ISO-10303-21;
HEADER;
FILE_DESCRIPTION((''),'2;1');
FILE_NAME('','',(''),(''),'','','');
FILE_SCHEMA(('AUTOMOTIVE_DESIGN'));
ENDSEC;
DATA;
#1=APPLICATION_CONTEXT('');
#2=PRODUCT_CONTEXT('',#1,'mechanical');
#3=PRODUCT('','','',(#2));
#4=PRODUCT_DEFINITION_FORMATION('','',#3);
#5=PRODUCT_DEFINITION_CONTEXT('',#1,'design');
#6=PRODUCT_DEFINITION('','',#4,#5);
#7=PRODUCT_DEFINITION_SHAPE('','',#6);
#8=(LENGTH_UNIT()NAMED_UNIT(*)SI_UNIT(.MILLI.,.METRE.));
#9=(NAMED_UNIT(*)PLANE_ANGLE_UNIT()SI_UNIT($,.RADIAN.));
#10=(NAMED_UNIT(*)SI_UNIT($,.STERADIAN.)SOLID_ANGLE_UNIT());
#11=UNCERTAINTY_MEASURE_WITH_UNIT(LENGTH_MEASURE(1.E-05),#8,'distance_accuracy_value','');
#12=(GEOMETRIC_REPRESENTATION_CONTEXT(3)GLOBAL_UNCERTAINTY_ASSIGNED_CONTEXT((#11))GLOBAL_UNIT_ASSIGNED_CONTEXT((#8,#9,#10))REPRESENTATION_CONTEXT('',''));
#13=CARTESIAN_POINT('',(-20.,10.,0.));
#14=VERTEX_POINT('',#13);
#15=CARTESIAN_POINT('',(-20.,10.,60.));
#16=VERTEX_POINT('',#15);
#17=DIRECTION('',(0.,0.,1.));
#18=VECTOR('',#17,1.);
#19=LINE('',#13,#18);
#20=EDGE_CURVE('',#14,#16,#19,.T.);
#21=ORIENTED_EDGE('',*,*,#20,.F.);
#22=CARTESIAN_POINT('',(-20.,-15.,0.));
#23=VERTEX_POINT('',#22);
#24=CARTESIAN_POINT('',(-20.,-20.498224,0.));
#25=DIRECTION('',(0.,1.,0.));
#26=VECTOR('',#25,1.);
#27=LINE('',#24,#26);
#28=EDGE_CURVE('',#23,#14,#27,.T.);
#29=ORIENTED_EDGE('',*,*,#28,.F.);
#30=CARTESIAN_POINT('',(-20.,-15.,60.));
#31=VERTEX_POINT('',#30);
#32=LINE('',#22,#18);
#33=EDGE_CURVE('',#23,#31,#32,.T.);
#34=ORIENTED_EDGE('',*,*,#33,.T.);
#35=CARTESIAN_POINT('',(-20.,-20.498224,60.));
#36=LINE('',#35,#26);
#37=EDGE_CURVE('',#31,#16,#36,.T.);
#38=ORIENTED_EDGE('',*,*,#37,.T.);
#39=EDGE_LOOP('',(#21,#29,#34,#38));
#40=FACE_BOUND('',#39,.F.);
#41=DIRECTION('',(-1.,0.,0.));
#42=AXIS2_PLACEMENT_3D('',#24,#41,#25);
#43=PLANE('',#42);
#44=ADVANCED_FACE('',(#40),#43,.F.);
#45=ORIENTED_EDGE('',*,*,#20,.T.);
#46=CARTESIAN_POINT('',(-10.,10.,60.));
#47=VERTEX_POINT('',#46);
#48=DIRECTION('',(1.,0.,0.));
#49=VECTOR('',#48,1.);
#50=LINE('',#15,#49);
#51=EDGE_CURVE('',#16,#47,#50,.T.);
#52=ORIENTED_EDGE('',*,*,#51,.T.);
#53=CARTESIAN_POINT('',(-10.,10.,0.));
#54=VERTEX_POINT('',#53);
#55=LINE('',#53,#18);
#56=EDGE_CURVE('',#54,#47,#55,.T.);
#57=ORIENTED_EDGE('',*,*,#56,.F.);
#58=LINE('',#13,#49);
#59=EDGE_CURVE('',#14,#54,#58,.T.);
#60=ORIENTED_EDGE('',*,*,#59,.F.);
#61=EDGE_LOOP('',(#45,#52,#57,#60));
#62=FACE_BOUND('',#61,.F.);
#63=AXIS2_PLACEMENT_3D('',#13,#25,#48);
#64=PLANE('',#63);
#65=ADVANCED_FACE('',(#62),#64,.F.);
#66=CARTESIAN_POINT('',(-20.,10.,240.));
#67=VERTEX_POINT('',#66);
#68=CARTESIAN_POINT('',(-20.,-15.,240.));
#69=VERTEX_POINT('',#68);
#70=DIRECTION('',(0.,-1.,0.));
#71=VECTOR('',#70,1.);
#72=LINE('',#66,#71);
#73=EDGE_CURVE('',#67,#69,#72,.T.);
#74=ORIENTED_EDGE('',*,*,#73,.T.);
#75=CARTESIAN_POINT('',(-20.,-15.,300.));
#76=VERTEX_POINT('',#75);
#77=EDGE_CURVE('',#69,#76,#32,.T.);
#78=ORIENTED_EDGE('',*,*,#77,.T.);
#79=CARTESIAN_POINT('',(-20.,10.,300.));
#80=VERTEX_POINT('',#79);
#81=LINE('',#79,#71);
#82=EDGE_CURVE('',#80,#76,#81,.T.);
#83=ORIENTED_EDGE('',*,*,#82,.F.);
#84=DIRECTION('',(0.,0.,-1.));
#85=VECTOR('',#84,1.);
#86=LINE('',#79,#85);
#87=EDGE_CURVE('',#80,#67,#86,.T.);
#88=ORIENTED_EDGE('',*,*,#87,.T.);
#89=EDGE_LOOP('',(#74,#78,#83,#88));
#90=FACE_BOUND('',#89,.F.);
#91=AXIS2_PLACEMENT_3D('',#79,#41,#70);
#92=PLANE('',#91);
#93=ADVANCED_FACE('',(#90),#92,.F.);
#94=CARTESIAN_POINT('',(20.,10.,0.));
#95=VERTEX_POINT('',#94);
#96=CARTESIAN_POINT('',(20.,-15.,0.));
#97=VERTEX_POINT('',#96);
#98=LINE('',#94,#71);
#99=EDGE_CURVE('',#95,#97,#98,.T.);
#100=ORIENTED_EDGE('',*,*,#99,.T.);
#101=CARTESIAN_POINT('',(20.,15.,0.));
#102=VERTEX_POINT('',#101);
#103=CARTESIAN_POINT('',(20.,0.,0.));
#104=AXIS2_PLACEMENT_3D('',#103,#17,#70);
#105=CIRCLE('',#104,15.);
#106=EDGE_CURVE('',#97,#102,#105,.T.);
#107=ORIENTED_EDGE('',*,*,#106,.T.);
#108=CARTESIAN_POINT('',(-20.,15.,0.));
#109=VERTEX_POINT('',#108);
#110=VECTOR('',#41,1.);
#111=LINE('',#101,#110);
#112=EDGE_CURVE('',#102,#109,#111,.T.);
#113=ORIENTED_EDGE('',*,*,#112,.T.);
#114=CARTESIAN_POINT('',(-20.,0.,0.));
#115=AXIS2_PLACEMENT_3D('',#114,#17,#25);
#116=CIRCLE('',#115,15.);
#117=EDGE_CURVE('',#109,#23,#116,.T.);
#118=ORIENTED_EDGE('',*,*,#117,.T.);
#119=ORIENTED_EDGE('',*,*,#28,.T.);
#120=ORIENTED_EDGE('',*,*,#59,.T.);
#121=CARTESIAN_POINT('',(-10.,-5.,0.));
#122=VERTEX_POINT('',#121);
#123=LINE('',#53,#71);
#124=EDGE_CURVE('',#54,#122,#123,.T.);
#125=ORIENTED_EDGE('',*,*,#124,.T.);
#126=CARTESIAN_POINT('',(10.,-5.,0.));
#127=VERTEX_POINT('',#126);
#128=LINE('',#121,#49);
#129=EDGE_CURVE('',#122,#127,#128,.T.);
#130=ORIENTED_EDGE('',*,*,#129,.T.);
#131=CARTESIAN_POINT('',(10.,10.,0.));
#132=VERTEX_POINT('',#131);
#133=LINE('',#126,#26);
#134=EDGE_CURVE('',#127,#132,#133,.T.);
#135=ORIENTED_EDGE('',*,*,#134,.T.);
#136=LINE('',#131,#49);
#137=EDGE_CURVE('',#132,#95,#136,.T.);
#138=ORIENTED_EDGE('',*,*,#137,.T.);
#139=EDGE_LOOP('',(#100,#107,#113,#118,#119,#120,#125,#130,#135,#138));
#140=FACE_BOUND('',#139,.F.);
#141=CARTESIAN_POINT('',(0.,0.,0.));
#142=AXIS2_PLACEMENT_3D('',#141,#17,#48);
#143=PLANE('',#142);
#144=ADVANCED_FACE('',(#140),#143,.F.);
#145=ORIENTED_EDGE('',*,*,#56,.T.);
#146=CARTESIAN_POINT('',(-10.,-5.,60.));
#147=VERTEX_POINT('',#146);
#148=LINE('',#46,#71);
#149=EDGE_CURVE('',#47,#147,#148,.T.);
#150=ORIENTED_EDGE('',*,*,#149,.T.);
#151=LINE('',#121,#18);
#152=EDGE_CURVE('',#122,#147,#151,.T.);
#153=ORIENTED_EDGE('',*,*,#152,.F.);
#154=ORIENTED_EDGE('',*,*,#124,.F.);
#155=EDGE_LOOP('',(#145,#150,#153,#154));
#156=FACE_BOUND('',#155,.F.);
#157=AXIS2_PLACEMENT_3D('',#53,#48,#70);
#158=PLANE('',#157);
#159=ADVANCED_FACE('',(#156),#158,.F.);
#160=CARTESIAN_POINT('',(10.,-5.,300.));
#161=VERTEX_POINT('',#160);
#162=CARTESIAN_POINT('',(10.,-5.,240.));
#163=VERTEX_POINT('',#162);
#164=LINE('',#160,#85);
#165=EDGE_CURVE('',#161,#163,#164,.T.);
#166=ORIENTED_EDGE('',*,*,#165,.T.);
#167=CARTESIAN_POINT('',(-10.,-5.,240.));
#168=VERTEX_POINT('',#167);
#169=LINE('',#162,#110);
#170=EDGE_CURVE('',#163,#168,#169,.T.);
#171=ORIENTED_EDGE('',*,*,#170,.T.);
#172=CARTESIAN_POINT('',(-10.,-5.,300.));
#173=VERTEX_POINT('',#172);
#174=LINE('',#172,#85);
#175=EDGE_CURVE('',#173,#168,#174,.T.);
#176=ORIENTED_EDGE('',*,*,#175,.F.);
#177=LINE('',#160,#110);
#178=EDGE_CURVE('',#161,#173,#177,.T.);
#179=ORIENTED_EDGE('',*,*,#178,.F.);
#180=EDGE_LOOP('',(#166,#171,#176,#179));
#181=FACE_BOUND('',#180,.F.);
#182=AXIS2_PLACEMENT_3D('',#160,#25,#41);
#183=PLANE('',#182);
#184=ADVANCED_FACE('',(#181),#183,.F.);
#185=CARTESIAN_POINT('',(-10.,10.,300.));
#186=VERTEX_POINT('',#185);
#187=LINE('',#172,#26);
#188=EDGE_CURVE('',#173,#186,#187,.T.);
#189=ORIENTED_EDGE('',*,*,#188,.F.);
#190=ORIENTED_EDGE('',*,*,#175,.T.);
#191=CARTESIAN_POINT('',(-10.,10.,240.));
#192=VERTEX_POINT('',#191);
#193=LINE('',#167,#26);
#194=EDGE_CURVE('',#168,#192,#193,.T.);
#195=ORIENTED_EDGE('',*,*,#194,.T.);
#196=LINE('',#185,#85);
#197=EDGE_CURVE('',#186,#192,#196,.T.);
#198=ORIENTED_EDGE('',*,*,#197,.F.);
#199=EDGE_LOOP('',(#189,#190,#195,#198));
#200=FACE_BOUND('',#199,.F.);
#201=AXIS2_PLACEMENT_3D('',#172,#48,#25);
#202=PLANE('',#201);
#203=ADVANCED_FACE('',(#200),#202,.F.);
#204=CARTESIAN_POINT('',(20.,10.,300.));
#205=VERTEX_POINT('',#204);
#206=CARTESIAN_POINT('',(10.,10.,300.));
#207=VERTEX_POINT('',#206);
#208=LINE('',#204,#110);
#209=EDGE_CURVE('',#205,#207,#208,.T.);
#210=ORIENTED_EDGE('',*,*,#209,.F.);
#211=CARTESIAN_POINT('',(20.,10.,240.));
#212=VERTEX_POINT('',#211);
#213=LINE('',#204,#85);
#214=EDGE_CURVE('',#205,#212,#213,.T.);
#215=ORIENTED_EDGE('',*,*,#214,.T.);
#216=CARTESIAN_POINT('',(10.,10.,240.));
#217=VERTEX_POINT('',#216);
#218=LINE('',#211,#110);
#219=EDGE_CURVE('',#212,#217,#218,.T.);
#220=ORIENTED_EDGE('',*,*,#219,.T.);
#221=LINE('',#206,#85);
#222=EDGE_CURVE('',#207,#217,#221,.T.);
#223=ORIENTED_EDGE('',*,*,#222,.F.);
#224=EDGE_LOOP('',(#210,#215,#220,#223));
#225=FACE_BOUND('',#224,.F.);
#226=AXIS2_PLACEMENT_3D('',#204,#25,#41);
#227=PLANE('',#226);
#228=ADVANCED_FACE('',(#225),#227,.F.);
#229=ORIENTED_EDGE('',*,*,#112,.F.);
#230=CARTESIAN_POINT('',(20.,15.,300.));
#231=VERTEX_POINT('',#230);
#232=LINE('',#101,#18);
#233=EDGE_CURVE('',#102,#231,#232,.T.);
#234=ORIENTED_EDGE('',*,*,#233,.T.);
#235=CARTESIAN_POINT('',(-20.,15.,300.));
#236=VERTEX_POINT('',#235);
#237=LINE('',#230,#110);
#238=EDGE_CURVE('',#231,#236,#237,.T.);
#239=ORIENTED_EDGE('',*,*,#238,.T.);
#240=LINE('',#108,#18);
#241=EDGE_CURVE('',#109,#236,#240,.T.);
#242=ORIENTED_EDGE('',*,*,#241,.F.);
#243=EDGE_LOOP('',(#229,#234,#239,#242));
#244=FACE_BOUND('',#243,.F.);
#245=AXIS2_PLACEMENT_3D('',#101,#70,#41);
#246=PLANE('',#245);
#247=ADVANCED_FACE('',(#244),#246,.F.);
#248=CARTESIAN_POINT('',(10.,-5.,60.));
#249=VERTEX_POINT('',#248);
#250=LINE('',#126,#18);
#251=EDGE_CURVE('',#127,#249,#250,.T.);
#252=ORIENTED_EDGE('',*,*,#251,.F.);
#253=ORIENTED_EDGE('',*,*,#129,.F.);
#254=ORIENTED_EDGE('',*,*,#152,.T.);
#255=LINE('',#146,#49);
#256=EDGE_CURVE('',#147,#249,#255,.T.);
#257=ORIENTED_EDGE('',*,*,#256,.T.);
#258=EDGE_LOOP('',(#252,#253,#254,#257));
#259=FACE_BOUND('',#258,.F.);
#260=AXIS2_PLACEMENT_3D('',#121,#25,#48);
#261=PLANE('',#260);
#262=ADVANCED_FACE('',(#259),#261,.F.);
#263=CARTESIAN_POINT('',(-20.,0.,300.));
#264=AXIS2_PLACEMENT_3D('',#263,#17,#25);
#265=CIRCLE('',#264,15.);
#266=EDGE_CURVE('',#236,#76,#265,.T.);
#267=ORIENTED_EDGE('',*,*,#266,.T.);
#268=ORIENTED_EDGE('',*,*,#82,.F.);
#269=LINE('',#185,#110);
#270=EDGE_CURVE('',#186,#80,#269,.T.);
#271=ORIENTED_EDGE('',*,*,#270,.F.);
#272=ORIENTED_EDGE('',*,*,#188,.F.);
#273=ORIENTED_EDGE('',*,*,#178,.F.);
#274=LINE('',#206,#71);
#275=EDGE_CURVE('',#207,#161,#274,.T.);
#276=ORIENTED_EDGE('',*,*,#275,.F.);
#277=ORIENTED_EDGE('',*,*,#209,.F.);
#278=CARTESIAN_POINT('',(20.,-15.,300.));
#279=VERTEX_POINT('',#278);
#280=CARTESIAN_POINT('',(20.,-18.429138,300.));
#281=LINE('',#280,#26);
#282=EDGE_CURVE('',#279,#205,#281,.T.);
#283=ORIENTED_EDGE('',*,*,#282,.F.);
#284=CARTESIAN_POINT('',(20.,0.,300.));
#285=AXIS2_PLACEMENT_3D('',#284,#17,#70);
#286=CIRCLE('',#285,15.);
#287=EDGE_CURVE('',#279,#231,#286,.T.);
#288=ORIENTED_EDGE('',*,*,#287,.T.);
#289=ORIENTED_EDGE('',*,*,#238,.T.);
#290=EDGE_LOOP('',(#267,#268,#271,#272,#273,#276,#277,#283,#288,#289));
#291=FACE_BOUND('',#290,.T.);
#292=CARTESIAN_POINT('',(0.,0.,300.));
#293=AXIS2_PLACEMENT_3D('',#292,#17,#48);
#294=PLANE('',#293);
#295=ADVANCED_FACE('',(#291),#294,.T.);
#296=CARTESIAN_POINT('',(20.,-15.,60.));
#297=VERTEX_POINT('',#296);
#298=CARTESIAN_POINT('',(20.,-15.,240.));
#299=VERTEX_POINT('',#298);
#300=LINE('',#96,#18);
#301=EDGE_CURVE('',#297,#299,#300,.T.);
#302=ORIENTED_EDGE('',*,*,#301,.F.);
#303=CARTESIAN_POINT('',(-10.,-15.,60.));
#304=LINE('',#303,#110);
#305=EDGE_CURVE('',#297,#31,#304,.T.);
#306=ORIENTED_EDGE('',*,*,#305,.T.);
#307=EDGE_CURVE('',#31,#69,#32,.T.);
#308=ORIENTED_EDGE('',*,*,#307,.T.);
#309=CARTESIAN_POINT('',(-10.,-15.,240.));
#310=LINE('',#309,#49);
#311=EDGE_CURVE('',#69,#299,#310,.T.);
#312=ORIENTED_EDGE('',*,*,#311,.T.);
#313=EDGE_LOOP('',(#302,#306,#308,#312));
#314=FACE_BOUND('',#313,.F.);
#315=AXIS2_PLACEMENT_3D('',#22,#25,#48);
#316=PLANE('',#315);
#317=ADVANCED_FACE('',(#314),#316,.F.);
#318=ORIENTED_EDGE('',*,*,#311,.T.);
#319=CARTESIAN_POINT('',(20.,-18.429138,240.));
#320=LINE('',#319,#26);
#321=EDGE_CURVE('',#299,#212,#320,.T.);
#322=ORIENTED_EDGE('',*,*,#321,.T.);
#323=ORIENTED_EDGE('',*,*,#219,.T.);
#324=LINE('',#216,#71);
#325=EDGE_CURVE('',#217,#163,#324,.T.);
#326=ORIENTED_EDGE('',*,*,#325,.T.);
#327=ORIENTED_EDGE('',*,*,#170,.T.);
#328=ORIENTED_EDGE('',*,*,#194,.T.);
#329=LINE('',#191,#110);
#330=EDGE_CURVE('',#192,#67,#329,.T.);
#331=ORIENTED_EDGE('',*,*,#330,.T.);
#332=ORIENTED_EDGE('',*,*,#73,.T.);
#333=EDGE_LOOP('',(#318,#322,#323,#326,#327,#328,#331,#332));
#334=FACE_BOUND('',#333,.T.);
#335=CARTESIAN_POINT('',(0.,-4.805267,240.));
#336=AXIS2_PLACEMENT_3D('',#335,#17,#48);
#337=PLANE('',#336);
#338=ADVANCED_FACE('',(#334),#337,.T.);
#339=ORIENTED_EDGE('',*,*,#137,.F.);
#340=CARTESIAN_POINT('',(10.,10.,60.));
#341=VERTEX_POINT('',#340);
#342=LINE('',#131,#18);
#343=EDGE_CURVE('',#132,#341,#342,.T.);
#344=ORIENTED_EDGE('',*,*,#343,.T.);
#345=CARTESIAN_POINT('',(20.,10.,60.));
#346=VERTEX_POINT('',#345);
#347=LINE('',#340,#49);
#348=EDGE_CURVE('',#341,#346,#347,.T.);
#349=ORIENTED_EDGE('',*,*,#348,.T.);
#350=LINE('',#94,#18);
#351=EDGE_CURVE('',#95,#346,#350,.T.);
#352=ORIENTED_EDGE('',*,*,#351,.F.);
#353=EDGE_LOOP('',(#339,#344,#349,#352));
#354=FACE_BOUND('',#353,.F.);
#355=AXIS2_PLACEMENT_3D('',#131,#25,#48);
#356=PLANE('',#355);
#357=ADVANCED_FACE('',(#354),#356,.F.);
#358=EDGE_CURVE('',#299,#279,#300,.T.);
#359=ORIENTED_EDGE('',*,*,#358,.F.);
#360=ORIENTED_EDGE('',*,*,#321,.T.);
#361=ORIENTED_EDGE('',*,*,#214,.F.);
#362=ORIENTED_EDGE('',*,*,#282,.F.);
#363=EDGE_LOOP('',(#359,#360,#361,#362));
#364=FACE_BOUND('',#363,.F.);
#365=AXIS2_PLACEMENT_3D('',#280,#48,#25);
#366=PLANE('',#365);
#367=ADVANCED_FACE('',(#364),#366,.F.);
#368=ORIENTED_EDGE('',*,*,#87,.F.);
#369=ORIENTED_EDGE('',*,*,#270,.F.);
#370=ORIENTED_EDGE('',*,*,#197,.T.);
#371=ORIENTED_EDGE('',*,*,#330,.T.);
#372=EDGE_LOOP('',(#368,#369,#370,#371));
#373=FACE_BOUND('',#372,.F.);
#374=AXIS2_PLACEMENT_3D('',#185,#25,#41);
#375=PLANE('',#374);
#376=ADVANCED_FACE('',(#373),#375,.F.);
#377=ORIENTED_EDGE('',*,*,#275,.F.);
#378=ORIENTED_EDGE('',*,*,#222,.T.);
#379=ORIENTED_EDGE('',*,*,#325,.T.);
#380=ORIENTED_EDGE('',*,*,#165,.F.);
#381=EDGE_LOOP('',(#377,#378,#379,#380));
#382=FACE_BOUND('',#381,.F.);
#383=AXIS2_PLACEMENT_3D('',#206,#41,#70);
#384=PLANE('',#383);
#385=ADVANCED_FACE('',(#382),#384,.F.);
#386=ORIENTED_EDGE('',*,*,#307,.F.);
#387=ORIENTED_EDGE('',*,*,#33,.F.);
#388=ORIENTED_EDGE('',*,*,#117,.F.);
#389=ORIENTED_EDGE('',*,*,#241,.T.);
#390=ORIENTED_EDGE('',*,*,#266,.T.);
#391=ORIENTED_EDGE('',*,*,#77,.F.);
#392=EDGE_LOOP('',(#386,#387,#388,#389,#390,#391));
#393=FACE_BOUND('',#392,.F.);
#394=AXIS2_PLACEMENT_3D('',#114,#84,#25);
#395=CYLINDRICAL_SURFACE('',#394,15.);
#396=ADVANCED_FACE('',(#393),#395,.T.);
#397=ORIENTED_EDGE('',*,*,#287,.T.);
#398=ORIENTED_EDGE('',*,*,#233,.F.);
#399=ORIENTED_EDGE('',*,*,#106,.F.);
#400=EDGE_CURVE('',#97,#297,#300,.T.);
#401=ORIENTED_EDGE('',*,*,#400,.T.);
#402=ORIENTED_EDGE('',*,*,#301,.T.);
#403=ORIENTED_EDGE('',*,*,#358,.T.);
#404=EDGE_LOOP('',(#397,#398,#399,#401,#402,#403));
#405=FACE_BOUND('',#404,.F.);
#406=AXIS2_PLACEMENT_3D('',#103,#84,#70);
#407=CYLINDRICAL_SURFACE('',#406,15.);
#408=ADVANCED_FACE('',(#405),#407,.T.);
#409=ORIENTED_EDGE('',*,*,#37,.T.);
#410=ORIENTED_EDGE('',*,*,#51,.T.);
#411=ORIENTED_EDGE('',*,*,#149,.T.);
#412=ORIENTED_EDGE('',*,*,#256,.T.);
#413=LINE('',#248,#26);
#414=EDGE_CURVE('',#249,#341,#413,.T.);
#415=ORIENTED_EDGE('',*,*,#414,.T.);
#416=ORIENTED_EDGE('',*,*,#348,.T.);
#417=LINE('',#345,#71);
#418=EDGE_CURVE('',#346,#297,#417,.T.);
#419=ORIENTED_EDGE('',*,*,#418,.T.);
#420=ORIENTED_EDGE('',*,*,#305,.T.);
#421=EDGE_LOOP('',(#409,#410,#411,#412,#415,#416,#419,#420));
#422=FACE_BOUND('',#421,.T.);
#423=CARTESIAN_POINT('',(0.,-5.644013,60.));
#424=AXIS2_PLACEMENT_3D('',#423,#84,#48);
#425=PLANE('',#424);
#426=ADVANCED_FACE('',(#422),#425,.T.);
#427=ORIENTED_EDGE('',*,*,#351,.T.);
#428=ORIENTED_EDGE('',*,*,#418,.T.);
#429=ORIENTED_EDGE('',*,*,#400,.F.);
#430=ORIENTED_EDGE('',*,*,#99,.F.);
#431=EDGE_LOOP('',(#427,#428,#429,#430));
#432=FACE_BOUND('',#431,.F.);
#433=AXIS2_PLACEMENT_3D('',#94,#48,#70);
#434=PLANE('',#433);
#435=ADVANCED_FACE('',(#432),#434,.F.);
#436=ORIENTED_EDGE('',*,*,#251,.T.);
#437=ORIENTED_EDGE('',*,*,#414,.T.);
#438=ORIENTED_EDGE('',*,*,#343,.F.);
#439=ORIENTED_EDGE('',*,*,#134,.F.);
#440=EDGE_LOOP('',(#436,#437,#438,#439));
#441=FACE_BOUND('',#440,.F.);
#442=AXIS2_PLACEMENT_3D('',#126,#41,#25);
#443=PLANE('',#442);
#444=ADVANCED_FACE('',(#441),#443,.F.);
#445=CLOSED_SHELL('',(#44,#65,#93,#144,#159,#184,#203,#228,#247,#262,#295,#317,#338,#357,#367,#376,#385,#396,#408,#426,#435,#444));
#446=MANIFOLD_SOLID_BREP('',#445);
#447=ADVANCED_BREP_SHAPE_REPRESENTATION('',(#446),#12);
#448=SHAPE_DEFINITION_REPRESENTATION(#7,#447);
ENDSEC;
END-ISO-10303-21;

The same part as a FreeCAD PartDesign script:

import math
import FreeCAD as App
import Part
import Sketcher
Q = App.Units.Quantity


def add_polygon(sketch, points):
    """Adds a closed chain of lines whose ends are joined by coincident constraints."""
    first, n = sketch.GeometryCount, len(points)
    for a, b in zip(points, points[1:] + points[:1]):
        sketch.addGeometry(Part.LineSegment(App.Vector(*a, 0), App.Vector(*b, 0)), False)
    for i in range(n):
        sketch.addConstraint(Sketcher.Constraint("Coincident", first + i, 2, first + (i + 1) % n, 1))

doc = App.newDocument("Part")
body = doc.addObject("PartDesign::Body", "Body")

# Sketch on XY plane
sketch1 = body.newObject("Sketcher::SketchObject", "Sketch")
sketch1.AttachmentSupport = (doc.getObject("XY_Plane"), [""])
sketch1.MapMode = "FlatFace"
sketch1.addGeometry(Part.LineSegment(App.Vector(20, 15, 0), App.Vector(-20, 15, 0)), False)
sketch1.addGeometry(Part.ArcOfCircle(Part.Circle(App.Vector(-20, 0, 0), App.Vector(0, 0, 1), 15), math.radians(90), math.radians(270)), False)
sketch1.addGeometry(Part.LineSegment(App.Vector(-20, -15, 0), App.Vector(20, -15, 0)), False)
sketch1.addGeometry(Part.ArcOfCircle(Part.Circle(App.Vector(20, 0, 0), App.Vector(0, 0, 1), 15), math.radians(-90), math.radians(90)), False)
sketch1.addConstraint(Sketcher.Constraint("Tangent", 0, 2, 1, 1))
sketch1.addConstraint(Sketcher.Constraint("Tangent", 1, 2, 2, 1))
sketch1.addConstraint(Sketcher.Constraint("Tangent", 2, 2, 3, 1))
sketch1.addConstraint(Sketcher.Constraint("Tangent", 3, 2, 0, 1))
sketch1.addConstraint(Sketcher.Constraint("Horizontal", 0))
sketch1.addConstraint(Sketcher.Constraint("Horizontal", 2))
sketch1.addConstraint(Sketcher.Constraint("Symmetric", 1, 3, 3, 3, -1, 1))
sketch1.addConstraint(Sketcher.Constraint("Radius", 1, Q("15 mm")))
sketch1.addConstraint(Sketcher.Constraint("DistanceX", 0, 2, 0, 1, Q("40 mm")))
pad1 = body.newObject("PartDesign::Pad", "Pad")
pad1.Profile = sketch1
pad1.Length = 300

# Sketch on XY plane
sketch2 = body.newObject("Sketcher::SketchObject", "Sketch001")
sketch2.AttachmentSupport = (doc.getObject("XY_Plane"), [""])
sketch2.MapMode = "FlatFace"
sketch2.AttachmentOffset = App.Placement(App.Vector(0, 0, 300), App.Rotation())
add_polygon(sketch2, [(-10, 10), (-20, 10), (-20, -18), (20, -18), (20, 10), (10, 10), (10, -5), (-10, -5)])  # lines 0-7
sketch2.addConstraint(Sketcher.Constraint("Horizontal", 0))
sketch2.addConstraint(Sketcher.Constraint("Vertical", 1))
sketch2.addConstraint(Sketcher.Constraint("Horizontal", 2))
sketch2.addConstraint(Sketcher.Constraint("Vertical", 3))
sketch2.addConstraint(Sketcher.Constraint("Horizontal", 4))
sketch2.addConstraint(Sketcher.Constraint("Vertical", 5))
sketch2.addConstraint(Sketcher.Constraint("Horizontal", 6))
sketch2.addConstraint(Sketcher.Constraint("Vertical", 7))
sketch2.addConstraint(Sketcher.Constraint("Symmetric", 0, 2, 3, 2, -2))
sketch2.addConstraint(Sketcher.Constraint("Equal", 0, 4))
sketch2.addConstraint(Sketcher.Constraint("DistanceX", 0, 2, 0, 1, Q("10 mm")))
sketch2.addConstraint(Sketcher.Constraint("DistanceX", 2, 1, 2, 2, Q("40 mm")))
sketch2.addConstraint(Sketcher.Constraint("DistanceY", 5, 2, 5, 1, Q("15 mm")))
sketch2.addConstraint(Sketcher.Constraint("DistanceY", -1, 1, 0, 2, Q("10 mm")))
sketch2.addConstraint(Sketcher.Constraint("DistanceY", 1, 2, 1, 1, Q("28.429138 mm")))
pocket1 = body.newObject("PartDesign::Pocket", "Pocket")
pocket1.Profile = sketch2
pocket1.Length = 60

# Sketch on XY plane
sketch3 = body.newObject("Sketcher::SketchObject", "Sketch002")
sketch3.AttachmentSupport = (doc.getObject("XY_Plane"), [""])
sketch3.MapMode = "FlatFace"
add_polygon(sketch3, [(10, 10), (20, 10), (20, -20), (-20, -20), (-20, 10), (-10, 10), (-10, -5), (10, -5)])  # lines 0-7
sketch3.addConstraint(Sketcher.Constraint("Horizontal", 0))
sketch3.addConstraint(Sketcher.Constraint("Vertical", 1))
sketch3.addConstraint(Sketcher.Constraint("Horizontal", 2))
sketch3.addConstraint(Sketcher.Constraint("Vertical", 3))
sketch3.addConstraint(Sketcher.Constraint("Horizontal", 4))
sketch3.addConstraint(Sketcher.Constraint("Vertical", 5))
sketch3.addConstraint(Sketcher.Constraint("Horizontal", 6))
sketch3.addConstraint(Sketcher.Constraint("Vertical", 7))
sketch3.addConstraint(Sketcher.Constraint("Symmetric", 0, 2, 3, 2, -2))
sketch3.addConstraint(Sketcher.Constraint("Equal", 0, 4))
sketch3.addConstraint(Sketcher.Constraint("DistanceX", 0, 1, 0, 2, Q("10 mm")))
sketch3.addConstraint(Sketcher.Constraint("DistanceX", 2, 2, 2, 1, Q("40 mm")))
sketch3.addConstraint(Sketcher.Constraint("DistanceY", 5, 2, 5, 1, Q("15 mm")))
sketch3.addConstraint(Sketcher.Constraint("DistanceY", -1, 1, 0, 2, Q("10 mm")))
sketch3.addConstraint(Sketcher.Constraint("DistanceY", 1, 2, 1, 1, Q("30.498224 mm")))
pocket2 = body.newObject("PartDesign::Pocket", "Pocket001")
pocket2.Profile = sketch3
pocket2.Length = 60
pocket2.Reversed = True

doc.recompute()
